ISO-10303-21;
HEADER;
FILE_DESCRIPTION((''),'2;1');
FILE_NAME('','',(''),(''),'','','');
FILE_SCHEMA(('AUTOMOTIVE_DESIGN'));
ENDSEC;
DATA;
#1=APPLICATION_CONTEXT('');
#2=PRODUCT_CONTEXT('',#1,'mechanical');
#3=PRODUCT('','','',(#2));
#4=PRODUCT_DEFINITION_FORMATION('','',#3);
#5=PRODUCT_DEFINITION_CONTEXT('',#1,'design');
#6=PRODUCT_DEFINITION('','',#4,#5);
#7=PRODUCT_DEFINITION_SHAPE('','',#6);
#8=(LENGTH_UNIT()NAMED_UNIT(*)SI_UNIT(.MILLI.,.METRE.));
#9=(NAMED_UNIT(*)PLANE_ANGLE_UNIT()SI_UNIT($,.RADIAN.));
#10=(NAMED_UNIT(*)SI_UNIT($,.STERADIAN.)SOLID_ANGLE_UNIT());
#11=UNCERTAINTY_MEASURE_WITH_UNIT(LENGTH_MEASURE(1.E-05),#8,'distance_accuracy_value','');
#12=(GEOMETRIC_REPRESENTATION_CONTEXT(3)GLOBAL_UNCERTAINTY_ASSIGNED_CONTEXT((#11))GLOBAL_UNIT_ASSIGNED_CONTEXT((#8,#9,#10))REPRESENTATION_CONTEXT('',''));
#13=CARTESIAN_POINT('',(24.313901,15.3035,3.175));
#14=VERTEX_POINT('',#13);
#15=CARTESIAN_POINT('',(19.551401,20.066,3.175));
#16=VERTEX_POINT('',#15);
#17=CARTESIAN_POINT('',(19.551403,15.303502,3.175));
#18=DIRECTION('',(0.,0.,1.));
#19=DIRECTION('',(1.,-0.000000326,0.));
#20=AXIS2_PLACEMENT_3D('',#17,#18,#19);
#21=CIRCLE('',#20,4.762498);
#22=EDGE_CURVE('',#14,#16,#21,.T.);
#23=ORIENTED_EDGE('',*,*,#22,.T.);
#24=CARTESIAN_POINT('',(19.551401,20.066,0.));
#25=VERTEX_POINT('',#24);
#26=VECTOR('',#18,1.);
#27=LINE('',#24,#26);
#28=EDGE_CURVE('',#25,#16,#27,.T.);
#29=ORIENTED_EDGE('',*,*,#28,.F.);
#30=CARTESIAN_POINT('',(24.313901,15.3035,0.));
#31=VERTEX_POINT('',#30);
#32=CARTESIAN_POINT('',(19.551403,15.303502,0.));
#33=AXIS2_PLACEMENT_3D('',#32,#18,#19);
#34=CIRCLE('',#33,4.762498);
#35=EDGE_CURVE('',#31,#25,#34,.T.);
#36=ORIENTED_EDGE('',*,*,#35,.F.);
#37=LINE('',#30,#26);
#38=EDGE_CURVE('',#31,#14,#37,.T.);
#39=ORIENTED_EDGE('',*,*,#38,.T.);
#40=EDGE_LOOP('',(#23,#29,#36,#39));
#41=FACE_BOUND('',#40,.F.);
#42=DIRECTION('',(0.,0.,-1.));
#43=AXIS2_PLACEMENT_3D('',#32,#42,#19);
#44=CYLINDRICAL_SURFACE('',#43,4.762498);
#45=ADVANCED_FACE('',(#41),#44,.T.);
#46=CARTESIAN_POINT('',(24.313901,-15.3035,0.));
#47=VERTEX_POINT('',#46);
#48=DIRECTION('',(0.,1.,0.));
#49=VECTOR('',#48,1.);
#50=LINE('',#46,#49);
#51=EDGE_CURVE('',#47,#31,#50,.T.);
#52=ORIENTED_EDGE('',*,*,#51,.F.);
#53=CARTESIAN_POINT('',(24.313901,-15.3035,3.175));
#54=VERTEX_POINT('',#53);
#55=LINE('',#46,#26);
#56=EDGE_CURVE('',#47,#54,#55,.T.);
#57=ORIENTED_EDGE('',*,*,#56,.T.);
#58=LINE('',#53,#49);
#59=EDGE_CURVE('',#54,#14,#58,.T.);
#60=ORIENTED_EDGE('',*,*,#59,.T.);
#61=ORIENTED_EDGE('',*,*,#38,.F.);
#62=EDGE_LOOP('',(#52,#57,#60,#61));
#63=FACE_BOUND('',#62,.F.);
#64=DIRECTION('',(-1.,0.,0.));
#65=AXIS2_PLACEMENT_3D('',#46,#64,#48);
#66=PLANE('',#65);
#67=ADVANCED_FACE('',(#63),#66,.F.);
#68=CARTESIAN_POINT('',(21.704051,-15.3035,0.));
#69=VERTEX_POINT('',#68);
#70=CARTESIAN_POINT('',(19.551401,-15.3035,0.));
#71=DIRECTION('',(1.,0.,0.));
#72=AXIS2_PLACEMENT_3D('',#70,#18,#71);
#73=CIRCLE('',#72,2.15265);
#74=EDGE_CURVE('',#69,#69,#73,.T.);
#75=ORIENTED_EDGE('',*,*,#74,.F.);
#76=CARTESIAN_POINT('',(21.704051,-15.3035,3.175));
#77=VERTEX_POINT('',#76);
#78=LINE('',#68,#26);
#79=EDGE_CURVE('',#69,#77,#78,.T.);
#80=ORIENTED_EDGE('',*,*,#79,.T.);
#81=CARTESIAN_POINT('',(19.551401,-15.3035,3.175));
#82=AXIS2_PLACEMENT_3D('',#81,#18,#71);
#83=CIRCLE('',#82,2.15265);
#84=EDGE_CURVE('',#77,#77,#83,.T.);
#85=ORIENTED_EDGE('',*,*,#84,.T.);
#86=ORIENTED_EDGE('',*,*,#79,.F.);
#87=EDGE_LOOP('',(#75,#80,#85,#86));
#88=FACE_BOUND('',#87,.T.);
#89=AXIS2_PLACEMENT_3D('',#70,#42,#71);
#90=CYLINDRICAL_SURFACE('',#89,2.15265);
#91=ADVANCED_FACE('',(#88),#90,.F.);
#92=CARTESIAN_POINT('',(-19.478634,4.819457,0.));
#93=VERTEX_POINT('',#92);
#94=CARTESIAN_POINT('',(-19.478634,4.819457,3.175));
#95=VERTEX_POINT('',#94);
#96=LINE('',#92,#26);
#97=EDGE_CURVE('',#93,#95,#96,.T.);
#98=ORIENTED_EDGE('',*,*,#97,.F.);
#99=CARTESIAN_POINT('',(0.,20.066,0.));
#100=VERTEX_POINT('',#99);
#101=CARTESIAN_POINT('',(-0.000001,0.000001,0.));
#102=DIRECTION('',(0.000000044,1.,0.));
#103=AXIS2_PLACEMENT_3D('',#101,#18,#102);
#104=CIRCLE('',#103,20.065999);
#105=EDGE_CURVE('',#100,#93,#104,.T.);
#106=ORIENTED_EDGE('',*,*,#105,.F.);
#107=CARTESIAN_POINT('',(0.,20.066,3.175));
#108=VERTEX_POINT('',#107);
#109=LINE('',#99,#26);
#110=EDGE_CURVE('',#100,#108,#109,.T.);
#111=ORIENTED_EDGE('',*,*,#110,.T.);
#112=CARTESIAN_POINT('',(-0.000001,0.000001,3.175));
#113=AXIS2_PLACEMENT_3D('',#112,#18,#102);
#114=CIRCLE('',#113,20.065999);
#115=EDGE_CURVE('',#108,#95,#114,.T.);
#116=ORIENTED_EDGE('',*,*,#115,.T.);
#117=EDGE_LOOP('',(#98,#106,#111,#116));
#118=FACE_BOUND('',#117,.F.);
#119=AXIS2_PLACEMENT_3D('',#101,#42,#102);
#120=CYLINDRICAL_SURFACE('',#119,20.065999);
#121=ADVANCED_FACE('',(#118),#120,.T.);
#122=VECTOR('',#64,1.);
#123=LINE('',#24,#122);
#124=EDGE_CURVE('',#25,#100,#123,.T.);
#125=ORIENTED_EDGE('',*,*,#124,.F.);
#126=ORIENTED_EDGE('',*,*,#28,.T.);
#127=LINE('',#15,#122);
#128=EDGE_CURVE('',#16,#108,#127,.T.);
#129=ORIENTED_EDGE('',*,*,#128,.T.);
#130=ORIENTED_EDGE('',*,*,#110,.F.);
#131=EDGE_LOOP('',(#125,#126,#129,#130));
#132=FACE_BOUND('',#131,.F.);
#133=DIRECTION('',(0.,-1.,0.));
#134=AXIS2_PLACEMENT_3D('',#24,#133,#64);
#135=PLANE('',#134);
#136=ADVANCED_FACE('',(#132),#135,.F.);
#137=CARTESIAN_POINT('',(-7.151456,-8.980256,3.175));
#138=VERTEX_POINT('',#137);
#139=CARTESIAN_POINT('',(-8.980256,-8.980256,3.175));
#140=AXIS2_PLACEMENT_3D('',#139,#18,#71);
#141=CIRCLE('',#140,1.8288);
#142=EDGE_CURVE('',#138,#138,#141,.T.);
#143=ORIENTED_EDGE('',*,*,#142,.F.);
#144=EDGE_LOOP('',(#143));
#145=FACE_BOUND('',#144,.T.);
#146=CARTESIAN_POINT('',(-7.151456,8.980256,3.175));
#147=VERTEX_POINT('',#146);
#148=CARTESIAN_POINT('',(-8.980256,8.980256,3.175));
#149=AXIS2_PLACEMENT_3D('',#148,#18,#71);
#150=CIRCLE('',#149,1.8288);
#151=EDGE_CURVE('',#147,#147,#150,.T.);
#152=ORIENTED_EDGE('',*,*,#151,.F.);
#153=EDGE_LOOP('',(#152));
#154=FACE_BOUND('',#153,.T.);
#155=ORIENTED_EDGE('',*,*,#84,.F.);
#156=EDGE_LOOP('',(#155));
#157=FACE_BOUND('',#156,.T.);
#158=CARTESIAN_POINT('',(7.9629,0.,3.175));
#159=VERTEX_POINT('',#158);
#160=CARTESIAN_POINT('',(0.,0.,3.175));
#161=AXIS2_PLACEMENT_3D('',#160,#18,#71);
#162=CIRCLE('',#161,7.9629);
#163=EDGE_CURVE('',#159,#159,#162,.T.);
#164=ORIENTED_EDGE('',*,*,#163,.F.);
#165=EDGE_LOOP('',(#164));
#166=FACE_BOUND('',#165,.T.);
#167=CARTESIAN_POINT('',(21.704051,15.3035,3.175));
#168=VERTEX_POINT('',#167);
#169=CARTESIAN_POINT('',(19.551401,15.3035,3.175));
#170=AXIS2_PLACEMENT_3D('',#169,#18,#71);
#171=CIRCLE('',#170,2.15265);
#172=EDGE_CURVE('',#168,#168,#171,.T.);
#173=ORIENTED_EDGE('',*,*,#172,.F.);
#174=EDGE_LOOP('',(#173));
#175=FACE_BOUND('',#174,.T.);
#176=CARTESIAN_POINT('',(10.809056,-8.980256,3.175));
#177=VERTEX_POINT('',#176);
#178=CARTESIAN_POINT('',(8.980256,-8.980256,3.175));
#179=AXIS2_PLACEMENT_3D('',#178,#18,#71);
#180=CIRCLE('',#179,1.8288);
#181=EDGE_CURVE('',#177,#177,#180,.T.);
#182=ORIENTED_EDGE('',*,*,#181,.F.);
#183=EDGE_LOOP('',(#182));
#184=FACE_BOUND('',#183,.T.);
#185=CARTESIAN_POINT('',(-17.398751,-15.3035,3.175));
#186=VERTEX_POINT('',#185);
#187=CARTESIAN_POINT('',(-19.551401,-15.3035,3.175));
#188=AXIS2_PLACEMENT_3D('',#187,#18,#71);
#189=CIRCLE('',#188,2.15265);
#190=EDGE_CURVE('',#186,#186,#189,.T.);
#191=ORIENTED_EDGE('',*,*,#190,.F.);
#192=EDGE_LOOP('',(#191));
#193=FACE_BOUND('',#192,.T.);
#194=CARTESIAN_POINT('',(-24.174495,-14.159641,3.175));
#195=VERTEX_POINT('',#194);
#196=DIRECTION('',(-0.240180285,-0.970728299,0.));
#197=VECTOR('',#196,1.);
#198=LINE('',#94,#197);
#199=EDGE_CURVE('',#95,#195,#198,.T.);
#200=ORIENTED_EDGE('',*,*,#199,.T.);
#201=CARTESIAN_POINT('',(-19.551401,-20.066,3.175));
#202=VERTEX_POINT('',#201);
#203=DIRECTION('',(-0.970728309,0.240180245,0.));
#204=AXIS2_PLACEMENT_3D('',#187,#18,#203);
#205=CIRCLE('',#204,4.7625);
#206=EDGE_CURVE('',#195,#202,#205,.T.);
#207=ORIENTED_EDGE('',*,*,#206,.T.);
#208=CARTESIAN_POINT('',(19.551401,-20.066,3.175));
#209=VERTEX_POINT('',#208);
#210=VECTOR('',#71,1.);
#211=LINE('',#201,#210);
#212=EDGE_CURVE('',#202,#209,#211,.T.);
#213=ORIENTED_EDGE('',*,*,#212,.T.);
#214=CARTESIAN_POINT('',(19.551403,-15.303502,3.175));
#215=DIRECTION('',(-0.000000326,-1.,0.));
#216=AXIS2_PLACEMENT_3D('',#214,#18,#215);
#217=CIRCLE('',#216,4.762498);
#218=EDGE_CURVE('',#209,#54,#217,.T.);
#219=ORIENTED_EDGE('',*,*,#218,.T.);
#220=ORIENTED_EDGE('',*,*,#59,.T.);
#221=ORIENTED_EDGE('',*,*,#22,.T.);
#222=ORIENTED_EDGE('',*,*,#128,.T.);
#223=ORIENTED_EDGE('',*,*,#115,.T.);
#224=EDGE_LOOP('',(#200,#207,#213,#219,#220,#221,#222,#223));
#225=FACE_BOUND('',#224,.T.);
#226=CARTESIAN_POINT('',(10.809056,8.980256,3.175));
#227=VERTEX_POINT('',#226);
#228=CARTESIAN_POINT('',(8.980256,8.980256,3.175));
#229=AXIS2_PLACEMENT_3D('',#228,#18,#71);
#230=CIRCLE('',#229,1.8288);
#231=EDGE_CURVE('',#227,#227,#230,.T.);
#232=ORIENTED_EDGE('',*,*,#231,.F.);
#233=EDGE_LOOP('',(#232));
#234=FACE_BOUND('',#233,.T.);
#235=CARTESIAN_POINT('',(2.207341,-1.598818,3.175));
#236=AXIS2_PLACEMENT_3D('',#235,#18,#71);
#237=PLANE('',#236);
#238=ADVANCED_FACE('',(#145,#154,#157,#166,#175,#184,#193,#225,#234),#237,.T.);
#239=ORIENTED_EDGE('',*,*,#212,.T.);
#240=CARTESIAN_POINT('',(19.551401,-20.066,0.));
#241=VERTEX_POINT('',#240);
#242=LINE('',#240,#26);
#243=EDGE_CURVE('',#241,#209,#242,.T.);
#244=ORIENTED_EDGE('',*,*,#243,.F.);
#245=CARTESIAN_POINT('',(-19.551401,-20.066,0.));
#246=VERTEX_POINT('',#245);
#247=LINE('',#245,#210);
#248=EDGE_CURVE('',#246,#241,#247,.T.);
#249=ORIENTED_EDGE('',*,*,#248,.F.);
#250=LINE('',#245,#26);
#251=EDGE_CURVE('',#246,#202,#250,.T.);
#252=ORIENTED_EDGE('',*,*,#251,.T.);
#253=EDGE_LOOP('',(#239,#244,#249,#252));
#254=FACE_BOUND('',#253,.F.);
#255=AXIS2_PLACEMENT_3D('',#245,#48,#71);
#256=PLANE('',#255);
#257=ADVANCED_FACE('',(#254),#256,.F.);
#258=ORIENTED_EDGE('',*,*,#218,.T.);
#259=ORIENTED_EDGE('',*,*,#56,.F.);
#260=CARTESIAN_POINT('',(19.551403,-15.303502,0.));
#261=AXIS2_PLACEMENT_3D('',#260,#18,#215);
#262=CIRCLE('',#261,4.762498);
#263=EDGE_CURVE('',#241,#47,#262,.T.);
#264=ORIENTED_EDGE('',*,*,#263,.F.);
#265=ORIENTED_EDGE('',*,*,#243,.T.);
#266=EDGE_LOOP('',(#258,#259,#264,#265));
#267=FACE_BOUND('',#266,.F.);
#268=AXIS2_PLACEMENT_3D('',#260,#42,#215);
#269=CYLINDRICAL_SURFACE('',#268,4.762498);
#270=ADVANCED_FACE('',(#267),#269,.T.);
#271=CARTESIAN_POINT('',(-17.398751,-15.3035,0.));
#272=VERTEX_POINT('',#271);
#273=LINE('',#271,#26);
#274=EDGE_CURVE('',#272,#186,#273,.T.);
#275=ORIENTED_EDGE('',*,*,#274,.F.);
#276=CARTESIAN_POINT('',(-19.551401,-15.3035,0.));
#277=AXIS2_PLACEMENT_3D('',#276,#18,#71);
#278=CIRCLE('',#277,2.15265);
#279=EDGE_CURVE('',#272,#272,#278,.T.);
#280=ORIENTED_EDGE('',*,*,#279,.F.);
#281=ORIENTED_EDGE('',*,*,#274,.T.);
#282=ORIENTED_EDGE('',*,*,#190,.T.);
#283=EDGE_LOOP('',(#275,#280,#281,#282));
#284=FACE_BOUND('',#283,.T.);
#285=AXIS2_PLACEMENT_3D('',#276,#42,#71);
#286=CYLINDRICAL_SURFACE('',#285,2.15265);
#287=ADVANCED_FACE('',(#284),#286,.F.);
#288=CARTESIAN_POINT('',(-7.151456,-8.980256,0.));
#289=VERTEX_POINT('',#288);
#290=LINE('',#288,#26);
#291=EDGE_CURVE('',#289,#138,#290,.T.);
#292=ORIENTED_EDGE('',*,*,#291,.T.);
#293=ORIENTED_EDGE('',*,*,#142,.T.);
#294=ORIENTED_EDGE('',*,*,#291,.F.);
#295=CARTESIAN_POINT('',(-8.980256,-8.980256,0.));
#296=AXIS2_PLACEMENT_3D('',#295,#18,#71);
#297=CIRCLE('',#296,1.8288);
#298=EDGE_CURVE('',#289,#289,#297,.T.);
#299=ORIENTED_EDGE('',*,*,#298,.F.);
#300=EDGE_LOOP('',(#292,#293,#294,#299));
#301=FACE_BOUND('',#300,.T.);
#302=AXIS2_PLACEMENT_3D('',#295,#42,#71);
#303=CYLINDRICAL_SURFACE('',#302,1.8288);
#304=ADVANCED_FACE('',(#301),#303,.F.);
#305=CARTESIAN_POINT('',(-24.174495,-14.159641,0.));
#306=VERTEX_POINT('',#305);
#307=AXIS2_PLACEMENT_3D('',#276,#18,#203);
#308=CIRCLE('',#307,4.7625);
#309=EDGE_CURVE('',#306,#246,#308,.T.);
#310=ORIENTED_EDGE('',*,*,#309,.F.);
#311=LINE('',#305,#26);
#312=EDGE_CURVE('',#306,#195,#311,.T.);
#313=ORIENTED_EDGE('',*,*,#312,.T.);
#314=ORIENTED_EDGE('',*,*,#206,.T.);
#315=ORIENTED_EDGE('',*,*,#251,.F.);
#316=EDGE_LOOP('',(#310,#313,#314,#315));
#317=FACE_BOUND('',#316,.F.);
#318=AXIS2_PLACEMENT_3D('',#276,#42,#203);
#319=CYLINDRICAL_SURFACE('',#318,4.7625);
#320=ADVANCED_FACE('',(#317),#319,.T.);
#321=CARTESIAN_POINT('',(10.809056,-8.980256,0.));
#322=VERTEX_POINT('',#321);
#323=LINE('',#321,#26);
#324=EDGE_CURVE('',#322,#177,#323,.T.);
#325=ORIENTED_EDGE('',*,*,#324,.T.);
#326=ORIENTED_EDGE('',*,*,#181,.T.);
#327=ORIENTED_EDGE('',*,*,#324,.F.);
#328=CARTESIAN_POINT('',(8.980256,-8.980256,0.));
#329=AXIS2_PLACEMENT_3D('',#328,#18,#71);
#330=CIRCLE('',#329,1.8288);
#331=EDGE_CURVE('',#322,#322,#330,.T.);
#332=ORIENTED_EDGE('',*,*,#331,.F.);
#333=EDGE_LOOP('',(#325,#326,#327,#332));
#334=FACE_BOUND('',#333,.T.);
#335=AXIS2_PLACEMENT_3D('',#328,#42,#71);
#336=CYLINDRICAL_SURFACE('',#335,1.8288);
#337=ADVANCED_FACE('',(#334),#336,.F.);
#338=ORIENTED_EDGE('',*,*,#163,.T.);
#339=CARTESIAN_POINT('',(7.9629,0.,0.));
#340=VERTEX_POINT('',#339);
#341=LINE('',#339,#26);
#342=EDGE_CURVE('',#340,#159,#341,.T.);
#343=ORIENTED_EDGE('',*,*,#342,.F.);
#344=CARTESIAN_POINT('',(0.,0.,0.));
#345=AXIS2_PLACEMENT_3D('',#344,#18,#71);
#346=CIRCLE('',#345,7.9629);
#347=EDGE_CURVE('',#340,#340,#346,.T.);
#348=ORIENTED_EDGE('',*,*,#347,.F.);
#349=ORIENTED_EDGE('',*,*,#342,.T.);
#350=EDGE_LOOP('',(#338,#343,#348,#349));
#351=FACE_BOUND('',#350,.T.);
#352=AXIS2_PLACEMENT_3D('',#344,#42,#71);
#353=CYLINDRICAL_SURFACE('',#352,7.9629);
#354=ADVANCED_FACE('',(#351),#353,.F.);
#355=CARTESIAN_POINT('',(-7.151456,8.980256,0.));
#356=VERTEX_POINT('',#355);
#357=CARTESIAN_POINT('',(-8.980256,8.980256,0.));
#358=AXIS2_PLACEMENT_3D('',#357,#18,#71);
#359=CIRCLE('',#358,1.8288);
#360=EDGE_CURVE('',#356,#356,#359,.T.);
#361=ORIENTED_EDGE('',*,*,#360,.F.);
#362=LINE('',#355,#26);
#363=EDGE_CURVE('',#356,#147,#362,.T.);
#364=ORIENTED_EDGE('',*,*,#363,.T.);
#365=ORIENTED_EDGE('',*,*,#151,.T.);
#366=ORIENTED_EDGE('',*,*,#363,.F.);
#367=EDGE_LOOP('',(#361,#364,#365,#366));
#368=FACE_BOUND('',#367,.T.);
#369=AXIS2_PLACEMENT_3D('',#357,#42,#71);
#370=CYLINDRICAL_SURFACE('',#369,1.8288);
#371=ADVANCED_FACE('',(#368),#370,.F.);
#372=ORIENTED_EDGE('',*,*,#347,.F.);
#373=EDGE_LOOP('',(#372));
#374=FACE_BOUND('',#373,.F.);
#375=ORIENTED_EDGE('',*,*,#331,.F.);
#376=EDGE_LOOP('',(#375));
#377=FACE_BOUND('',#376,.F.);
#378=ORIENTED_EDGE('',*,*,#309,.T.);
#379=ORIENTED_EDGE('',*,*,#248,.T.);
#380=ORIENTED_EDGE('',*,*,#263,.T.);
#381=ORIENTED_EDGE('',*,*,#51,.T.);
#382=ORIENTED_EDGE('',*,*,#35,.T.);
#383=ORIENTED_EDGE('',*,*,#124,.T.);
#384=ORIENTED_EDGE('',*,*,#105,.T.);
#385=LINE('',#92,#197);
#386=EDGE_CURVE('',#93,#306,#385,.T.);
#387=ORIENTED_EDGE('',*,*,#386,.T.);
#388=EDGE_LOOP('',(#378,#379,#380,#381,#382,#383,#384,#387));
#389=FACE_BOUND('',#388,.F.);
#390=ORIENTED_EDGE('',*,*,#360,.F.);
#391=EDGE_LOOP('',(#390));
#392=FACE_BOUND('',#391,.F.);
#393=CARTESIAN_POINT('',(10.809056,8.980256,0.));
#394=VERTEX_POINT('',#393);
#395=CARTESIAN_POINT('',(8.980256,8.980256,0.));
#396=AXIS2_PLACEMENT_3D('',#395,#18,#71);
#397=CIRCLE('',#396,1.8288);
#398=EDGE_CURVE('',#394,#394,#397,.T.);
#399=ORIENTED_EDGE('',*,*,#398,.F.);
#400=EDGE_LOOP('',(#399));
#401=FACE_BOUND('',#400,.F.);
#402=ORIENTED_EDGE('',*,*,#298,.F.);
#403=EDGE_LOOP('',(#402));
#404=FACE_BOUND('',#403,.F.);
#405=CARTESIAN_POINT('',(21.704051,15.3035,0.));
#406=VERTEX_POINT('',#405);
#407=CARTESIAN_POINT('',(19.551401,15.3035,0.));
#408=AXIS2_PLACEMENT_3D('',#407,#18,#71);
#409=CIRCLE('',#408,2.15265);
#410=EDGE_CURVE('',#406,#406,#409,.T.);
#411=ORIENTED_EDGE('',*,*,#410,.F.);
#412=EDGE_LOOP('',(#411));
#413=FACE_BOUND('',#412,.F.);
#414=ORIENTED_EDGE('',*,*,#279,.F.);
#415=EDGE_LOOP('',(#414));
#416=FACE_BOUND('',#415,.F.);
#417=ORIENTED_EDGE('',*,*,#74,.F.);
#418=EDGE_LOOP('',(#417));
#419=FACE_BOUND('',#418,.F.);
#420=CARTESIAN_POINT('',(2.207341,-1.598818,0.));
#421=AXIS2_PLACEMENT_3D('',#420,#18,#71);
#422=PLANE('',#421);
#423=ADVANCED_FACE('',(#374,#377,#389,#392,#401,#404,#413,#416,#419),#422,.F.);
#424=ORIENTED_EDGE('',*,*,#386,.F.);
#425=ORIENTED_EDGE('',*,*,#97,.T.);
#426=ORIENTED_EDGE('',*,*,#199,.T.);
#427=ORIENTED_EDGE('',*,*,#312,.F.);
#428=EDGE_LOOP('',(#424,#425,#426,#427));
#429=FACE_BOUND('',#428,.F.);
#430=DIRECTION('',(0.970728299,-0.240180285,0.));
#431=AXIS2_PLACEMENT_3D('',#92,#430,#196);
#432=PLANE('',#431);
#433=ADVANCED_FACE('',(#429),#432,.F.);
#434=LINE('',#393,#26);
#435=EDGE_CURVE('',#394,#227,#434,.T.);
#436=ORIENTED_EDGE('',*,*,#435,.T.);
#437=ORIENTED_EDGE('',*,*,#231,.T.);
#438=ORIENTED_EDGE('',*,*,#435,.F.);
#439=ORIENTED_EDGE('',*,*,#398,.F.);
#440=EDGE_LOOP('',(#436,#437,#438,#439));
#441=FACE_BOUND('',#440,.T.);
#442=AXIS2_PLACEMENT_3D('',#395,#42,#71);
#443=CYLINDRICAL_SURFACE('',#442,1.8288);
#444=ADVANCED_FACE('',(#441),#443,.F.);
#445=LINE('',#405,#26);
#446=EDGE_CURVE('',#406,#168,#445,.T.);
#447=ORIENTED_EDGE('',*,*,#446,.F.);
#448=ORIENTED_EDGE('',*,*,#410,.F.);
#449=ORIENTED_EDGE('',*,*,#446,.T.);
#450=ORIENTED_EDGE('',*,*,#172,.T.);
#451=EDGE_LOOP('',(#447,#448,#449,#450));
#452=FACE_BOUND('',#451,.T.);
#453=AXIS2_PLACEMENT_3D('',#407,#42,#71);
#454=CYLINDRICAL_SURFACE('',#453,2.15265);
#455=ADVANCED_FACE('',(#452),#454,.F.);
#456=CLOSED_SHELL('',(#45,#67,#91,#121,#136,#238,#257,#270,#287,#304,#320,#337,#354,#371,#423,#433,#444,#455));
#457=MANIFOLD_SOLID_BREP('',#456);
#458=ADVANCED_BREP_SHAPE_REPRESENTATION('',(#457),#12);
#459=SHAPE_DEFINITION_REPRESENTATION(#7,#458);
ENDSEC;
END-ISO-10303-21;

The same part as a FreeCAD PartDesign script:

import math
import FreeCAD as App
import Part
import Sketcher

V = App.Vector
Q = App.Units.Quantity

doc = App.newDocument("Part")
body = doc.addObject("PartDesign::Body", "Body")

# Sketch on XY plane
sketch1 = body.newObject("Sketcher::SketchObject", "Sketch")
sketch1.AttachmentSupport = (doc.getObject("XY_Plane"), [""])
sketch1.MapMode = "FlatFace"
sketch1.addGeometry(Part.LineSegment(V(19.6, 20.1, 0), V(0, 20.1, 0)), False)
sketch1.addGeometry(Part.ArcOfCircle(Part.Circle(V(0, 0, 0), V(0, 0, 1), 20.1), math.radians(90), math.radians(166)), False)
sketch1.addGeometry(Part.LineSegment(V(-19.5, 4.8, 0), V(-24.2, -14.2, 0)), False)
sketch1.addGeometry(Part.ArcOfCircle(Part.Circle(V(-19.6, -15.3, 0), V(0, 0, 1), 4.8), math.radians(166), math.radians(270)), False)
sketch1.addGeometry(Part.LineSegment(V(-19.6, -20.1, 0), V(19.6, -20.1, 0)), False)
sketch1.addGeometry(Part.ArcOfCircle(Part.Circle(V(19.6, -15.3, 0), V(0, 0, 1), 4.8), math.radians(-90), math.radians(0)), False)
sketch1.addGeometry(Part.LineSegment(V(24.3, -15.3, 0), V(24.3, 15.3, 0)), False)
sketch1.addGeometry(Part.ArcOfCircle(Part.Circle(V(19.6, 15.3, 0), V(0, 0, 1), 4.8), math.radians(0), math.radians(90)), False)
sketch1.addGeometry(Part.Circle(V(-19.6, -15.3, 0), V(0, 0, 1), 2.2), False)
sketch1.addGeometry(Part.Circle(V(-9, -9, 0), V(0, 0, 1), 1.8), False)
sketch1.addGeometry(Part.Circle(V(9, -9, 0), V(0, 0, 1), 1.8), False)
sketch1.addGeometry(Part.Circle(V(19.6, -15.3, 0), V(0, 0, 1), 2.2), False)
sketch1.addGeometry(Part.Circle(V(0, 0, 0), V(0, 0, 1), 8), False)
sketch1.addGeometry(Part.Circle(V(-9, 9, 0), V(0, 0, 1), 1.8), False)
sketch1.addGeometry(Part.Circle(V(9, 9, 0), V(0, 0, 1), 1.8), False)
sketch1.addGeometry(Part.Circle(V(19.6, 15.3, 0), V(0, 0, 1), 2.2), False)
sketch1.addConstraint(Sketcher.Constraint("Tangent", 0, 2, 1, 1))
sketch1.addConstraint(Sketcher.Constraint("Tangent", 1, 2, 2, 1))
sketch1.addConstraint(Sketcher.Constraint("Tangent", 2, 2, 3, 1))
sketch1.addConstraint(Sketcher.Constraint("Tangent", 3, 2, 4, 1))
sketch1.addConstraint(Sketcher.Constraint("Tangent", 4, 2, 5, 1))
sketch1.addConstraint(Sketcher.Constraint("Tangent", 5, 2, 6, 1))
sketch1.addConstraint(Sketcher.Constraint("Tangent", 6, 2, 7, 1))
sketch1.addConstraint(Sketcher.Constraint("Tangent", 7, 2, 0, 1))
sketch1.addConstraint(Sketcher.Constraint("Horizontal", 0))
sketch1.addConstraint(Sketcher.Constraint("Horizontal", 4))
sketch1.addConstraint(Sketcher.Constraint("Vertical", 6))
sketch1.addConstraint(Sketcher.Constraint("Coincident", 1, 3, -1, 1))
sketch1.addConstraint(Sketcher.Constraint("Coincident", 12, 3, -1, 1))
sketch1.addConstraint(Sketcher.Constraint("Coincident", 8, 3, 3, 3))
sketch1.addConstraint(Sketcher.Constraint("Coincident", 11, 3, 5, 3))
sketch1.addConstraint(Sketcher.Constraint("Coincident", 15, 3, 7, 3))
sketch1.addConstraint(Sketcher.Constraint("Equal", 5, 7))
sketch1.addConstraint(Sketcher.Constraint("Equal", 9, 10))
sketch1.addConstraint(Sketcher.Constraint("Equal", 8, 11))
sketch1.addConstraint(Sketcher.Constraint("Equal", 10, 13))
sketch1.addConstraint(Sketcher.Constraint("Equal", 13, 14))
sketch1.addConstraint(Sketcher.Constraint("Equal", 11, 15))
sketch1.addConstraint(Sketcher.Constraint("Symmetric", 3, 3, 7, 3, -1, 1))
sketch1.addConstraint(Sketcher.Constraint("Symmetric", 10, 3, 13, 3, -1, 1))
sketch1.addConstraint(Sketcher.Constraint("Symmetric", 9, 3, 14, 3, -1, 1))
sketch1.addConstraint(Sketcher.Constraint("Symmetric", 9, 3, 10, 3, -2))
sketch1.addConstraint(Sketcher.Constraint("Horizontal", 5, 3, 8, 3))
sketch1.addConstraint(Sketcher.Constraint("Radius", 1, Q("0.7899999 in")))
sketch1.addConstraint(Sketcher.Constraint("Diameter", 9, Q("0.144 in")))
sketch1.addConstraint(Sketcher.Constraint("Diameter", 12, Q("0.627 in")))
sketch1.addConstraint(Sketcher.Constraint("Radius", 3, Q("0.1875 in")))
sketch1.addConstraint(Sketcher.Constraint("Diameter", 8, Q("0.1695 in")))
sketch1.addConstraint(Sketcher.Constraint("DistanceX", 0, 2, 0, 1, 19.551401))
sketch1.addConstraint(Sketcher.Constraint("DistanceY", 1, 2, 13, 3, 4.160799))
sketch1.addConstraint(Sketcher.Constraint("DistanceX", 9, 3, 5, 3, 28.531659))
pad1 = body.newObject("PartDesign::Pad", "Pad")
pad1.Profile = sketch1
pad1.Length = Q("0.125 in")

doc.recompute()
